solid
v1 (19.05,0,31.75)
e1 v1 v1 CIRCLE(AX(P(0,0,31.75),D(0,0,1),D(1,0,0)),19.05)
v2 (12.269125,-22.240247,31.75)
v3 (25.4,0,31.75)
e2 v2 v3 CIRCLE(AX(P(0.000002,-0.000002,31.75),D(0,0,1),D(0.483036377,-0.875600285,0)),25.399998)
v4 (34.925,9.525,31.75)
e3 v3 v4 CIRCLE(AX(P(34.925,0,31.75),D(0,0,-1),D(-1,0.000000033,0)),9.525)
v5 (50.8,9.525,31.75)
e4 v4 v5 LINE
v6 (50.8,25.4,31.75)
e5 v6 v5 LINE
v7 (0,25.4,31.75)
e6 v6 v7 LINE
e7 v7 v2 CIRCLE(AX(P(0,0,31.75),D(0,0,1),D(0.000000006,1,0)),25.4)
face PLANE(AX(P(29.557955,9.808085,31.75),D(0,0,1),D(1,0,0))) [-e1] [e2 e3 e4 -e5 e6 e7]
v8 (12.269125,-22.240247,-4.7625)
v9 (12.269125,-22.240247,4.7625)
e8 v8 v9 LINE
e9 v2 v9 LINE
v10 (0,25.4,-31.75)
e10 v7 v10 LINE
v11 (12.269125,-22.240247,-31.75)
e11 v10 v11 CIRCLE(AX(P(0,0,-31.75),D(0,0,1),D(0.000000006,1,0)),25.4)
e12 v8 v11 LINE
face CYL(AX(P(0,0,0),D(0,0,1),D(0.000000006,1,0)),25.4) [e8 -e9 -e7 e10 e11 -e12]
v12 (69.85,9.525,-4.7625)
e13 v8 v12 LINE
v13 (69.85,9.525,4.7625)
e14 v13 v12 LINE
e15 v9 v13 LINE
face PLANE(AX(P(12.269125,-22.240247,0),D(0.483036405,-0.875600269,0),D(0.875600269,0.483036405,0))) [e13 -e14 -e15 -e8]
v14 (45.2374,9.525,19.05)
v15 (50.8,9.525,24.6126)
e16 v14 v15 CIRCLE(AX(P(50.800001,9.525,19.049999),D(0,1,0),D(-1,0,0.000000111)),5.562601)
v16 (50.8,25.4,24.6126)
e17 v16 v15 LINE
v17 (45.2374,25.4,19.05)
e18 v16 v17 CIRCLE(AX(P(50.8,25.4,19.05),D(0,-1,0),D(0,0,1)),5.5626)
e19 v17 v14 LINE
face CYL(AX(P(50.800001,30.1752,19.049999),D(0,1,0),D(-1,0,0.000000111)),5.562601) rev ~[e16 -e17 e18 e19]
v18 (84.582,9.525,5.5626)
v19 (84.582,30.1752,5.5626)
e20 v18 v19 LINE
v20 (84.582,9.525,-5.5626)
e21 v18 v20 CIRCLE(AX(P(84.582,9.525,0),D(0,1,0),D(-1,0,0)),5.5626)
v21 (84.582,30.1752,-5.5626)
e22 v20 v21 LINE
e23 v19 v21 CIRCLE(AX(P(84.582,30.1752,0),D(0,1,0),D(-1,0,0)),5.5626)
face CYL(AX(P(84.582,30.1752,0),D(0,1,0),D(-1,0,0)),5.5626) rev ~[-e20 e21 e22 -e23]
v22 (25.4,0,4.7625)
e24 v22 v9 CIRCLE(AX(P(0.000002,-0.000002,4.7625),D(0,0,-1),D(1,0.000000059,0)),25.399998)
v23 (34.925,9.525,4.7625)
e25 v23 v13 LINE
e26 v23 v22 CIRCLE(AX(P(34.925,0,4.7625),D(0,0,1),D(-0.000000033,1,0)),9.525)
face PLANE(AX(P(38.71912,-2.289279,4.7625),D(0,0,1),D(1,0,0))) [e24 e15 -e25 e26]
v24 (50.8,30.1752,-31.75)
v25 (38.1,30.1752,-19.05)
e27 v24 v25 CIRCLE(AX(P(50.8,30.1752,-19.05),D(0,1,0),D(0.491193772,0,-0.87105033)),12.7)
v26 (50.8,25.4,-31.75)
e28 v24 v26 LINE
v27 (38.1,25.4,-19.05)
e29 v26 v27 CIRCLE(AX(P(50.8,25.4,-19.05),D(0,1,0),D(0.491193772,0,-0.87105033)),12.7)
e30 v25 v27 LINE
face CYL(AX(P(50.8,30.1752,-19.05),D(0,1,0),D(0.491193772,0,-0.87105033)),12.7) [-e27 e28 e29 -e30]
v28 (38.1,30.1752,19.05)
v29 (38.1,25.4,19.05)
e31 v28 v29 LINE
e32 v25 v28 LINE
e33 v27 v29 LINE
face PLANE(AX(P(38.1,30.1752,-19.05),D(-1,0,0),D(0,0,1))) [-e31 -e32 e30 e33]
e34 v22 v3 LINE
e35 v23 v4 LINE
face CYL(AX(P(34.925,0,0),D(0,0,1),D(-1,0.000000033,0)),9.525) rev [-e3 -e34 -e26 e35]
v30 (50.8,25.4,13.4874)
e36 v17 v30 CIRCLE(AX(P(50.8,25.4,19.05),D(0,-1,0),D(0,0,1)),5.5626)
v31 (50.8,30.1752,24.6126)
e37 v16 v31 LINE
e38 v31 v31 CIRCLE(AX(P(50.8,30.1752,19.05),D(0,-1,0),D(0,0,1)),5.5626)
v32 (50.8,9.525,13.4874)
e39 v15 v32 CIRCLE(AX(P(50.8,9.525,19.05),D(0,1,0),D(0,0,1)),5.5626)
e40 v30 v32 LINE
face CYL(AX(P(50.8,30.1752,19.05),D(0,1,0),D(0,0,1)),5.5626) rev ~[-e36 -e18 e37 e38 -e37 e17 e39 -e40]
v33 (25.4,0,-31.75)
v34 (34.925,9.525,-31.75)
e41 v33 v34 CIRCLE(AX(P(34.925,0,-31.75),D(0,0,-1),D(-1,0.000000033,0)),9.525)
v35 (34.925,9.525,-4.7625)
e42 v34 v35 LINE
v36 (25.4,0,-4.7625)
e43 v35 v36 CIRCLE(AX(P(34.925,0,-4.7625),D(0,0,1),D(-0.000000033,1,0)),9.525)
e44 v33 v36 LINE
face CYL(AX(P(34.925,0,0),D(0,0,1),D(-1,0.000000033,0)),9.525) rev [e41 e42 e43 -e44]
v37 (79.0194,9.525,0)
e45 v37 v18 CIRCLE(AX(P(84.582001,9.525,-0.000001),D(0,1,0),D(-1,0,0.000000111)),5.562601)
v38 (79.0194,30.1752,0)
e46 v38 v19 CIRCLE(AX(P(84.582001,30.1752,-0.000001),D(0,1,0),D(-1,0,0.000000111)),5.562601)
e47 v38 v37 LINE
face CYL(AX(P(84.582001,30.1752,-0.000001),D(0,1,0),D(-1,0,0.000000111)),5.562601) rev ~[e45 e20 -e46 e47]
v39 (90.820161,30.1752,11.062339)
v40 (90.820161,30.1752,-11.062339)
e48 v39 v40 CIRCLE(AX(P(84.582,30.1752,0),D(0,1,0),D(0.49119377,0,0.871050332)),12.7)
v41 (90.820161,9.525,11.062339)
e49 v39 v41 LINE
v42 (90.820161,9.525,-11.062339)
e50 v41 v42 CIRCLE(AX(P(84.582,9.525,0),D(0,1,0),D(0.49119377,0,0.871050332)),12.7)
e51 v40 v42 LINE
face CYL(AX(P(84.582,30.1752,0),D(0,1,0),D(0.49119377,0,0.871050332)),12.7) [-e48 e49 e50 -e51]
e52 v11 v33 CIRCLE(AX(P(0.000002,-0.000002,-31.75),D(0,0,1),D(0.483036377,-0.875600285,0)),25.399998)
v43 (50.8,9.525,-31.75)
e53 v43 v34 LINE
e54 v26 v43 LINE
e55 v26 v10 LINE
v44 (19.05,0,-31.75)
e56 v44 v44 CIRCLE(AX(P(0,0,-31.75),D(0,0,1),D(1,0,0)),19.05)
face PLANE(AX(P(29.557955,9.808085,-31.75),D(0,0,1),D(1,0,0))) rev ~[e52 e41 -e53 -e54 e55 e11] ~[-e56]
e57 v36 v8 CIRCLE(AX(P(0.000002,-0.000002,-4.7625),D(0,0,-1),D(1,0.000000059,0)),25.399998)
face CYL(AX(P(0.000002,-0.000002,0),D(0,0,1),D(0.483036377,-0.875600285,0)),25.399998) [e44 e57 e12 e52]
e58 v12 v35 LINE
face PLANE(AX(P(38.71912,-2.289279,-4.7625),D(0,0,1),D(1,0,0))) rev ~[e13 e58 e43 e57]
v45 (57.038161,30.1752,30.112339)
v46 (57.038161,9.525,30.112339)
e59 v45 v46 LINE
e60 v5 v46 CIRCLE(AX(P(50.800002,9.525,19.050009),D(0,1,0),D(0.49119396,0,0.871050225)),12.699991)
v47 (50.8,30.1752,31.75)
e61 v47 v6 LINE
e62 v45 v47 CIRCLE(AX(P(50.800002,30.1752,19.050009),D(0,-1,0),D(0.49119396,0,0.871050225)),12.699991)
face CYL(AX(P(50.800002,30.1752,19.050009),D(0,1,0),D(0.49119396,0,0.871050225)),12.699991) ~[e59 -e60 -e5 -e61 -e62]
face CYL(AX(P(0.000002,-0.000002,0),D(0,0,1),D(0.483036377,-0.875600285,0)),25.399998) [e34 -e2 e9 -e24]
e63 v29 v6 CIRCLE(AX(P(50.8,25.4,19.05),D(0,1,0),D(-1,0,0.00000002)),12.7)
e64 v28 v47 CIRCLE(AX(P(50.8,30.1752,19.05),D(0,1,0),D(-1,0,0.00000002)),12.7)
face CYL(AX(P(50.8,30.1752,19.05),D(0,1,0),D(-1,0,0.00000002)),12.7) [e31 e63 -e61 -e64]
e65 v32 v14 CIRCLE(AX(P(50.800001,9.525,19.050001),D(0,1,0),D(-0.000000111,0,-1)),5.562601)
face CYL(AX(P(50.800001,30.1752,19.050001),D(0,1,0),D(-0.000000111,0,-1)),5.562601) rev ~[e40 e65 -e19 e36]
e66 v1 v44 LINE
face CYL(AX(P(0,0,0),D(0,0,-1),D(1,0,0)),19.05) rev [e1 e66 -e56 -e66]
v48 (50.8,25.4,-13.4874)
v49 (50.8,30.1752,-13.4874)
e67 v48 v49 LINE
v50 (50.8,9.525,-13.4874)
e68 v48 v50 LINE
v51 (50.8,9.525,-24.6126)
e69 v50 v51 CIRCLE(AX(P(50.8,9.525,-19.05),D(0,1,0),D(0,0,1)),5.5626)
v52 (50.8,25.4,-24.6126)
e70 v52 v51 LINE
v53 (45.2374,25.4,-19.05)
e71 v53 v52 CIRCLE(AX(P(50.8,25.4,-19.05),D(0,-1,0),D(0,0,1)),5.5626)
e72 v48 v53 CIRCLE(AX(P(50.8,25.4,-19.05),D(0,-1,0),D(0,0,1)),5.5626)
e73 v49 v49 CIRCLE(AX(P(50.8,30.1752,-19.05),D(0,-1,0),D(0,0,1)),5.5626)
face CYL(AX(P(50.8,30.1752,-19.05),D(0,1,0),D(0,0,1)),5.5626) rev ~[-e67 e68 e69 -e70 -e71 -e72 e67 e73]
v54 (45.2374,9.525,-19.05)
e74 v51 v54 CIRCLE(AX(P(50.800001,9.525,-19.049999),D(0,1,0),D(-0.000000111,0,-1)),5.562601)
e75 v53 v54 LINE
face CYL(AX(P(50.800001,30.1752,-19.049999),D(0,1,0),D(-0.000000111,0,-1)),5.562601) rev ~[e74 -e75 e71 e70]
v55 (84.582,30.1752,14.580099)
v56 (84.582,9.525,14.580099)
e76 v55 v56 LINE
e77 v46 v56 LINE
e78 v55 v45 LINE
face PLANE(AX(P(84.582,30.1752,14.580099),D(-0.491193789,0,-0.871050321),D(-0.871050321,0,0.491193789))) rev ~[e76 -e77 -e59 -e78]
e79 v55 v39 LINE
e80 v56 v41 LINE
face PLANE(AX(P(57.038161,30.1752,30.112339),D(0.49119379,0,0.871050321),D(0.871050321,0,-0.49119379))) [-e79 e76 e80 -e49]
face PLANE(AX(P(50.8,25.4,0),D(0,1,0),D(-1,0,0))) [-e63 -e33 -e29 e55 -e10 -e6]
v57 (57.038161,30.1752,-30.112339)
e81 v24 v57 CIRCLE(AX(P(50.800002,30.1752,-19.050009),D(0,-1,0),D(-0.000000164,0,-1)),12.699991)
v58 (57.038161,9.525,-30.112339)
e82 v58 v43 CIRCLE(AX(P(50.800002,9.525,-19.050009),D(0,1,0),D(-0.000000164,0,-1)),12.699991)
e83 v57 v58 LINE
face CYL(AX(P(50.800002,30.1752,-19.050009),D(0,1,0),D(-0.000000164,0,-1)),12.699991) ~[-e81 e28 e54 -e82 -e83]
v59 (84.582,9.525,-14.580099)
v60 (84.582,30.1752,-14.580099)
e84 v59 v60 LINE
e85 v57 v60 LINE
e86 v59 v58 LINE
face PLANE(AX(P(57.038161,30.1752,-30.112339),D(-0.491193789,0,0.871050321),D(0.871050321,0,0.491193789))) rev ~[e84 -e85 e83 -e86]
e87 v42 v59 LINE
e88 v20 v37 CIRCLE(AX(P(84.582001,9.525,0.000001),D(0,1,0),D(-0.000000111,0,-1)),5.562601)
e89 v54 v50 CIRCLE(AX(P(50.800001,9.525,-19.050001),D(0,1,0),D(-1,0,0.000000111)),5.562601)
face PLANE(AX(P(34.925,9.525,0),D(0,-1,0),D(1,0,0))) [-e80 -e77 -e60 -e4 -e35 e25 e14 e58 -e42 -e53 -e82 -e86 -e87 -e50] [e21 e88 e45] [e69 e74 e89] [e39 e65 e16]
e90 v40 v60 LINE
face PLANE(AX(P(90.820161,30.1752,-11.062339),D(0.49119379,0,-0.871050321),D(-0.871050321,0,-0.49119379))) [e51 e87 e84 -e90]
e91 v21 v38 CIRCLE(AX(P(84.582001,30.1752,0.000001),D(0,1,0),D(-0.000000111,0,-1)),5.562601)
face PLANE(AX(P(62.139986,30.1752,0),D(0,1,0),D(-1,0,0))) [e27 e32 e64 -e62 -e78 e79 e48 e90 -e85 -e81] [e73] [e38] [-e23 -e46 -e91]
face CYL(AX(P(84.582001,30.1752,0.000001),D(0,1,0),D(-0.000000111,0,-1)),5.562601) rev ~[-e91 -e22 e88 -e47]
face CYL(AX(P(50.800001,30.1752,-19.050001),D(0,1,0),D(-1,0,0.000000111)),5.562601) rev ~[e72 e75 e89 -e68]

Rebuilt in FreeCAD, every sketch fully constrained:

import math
import FreeCAD as App
import Part
import Sketcher
from FreeCAD import Vector
Q = App.Units.Quantity

doc = App.newDocument("Part")
params = doc.addObject("Spreadsheet::Sheet", "Params")
for row, (alias, value) in enumerate([
    ("sketch1_radius", "0.9999999 in"),
    ("sketch1_diameter", "1.5 in"),
    ("sketch1_width", "2 in"),
    ("sketch1_radius2", "0.375 in"),
    ("sketch1_width2", "1.33 in"),
    ("pad1_length", "2.5 in"),
    ("sketch2_radius", "0.9999999 in"),
    ("sketch2_radius2", "0.375 in"),
    ("sketch2_width", "1.375 in"),
    ("pad2_length", "0.375 in"),
    ("sketch3_radius", "0.5 in"),
    ("sketch3_diameter", "0.438 in"),
    ("sketch3_height", "1.5 in"),
    ("pad3_length", "0.813 in"),
    ("sketch4_radius", "0.219 in"),
    ("sketch4_width", "1.33 in"),
], start=1):
    params.set(f"A{row}", alias)
    params.set(f"B{row}", "=" + value)
    params.setAlias(f"B{row}", alias)

body = doc.addObject("PartDesign::Body", "Body")

# Sketch on XY plane
sketch1 = body.newObject("Sketcher::SketchObject", "Sketch")
sketch1.AttachmentSupport = (doc.getObject("XY_Plane"), [""])
sketch1.MapMode = "FlatFace"
sketch1.addGeometry([
    Part.ArcOfCircle(Part.Circle(Vector(0, 0, 0), Vector(0, 0, 1), 25.4), math.radians(-61), math.radians(0)),  # 0
    Part.ArcOfCircle(Part.Circle(Vector(34.9, 0, 0), Vector(0, 0, 1), 9.5), math.radians(90), math.radians(180)),  # 1
    Part.LineSegment(Vector(34.9, 9.5, 0), Vector(84.6, 9.5, 0)),  # 2
    Part.LineSegment(Vector(84.6, 9.5, 0), Vector(84.6, 30.2, 0)),  # 3
    Part.LineSegment(Vector(84.6, 30.2, 0), Vector(50.8, 30.2, 0)),  # 4
    Part.LineSegment(Vector(50.8, 30.2, 0), Vector(50.8, 25.4, 0)),  # 5
    Part.LineSegment(Vector(50.8, 25.4, 0), Vector(0, 25.4, 0)),  # 6
    Part.ArcOfCircle(Part.Circle(Vector(0, 0, 0), Vector(0, 0, 1), 25.4), math.radians(90), math.radians(299)),  # 7
    Part.Circle(Vector(0, 0, 0), Vector(0, 0, 1), 19.1),  # 8
], False)
sketch1.addConstraint([
    Sketcher.Constraint("Tangent", 0, 2, 1, 2),
    Sketcher.Constraint("Tangent", 1, 1, 2, 1),
    Sketcher.Constraint("Coincident", 2, 2, 3, 1),
    Sketcher.Constraint("Coincident", 3, 2, 4, 1),
    Sketcher.Constraint("Coincident", 4, 2, 5, 1),
    Sketcher.Constraint("Coincident", 5, 2, 6, 1),
    Sketcher.Constraint("Tangent", 6, 2, 7, 1),
    Sketcher.Constraint("Tangent", 7, 2, 0, 1),
    Sketcher.Constraint("Horizontal", 2),
    Sketcher.Constraint("Vertical", 3),
    Sketcher.Constraint("Horizontal", 4),
    Sketcher.Constraint("Vertical", 5),
    Sketcher.Constraint("Horizontal", 6),
    Sketcher.Constraint("Coincident", 0, 3, -1, 1),
    Sketcher.Constraint("Coincident", 8, 3, -1, 1),
    Sketcher.Constraint("PointOnObject", 1, 3, -1),
    Sketcher.Constraint("PointOnObject", 6, 2, -2),
    Sketcher.Constraint("Radius", 0, Q("0.9999999 in")),
    Sketcher.Constraint("Diameter", 8, Q("1.5 in")),
    Sketcher.Constraint("DistanceX", 6, 2, 6, 1, Q("2 in")),
    Sketcher.Constraint("Radius", 1, Q("0.375 in")),
    Sketcher.Constraint("DistanceX", 4, 2, 4, 1, Q("1.33 in")),
    Sketcher.Constraint("DistanceY", 3, 1, 3, 2, Q("0.813 in")),
    Sketcher.Constraint("DistanceX", -1, 1, 7, 2, 12.269125),
])
sketch1.setExpression("Constraints[17]", "Params.sketch1_radius")
sketch1.setExpression("Constraints[18]", "Params.sketch1_diameter")
sketch1.setExpression("Constraints[19]", "Params.sketch1_width")
sketch1.setExpression("Constraints[20]", "Params.sketch1_radius2")
sketch1.setExpression("Constraints[21]", "Params.sketch1_width2")
pad1 = body.newObject("PartDesign::Pad", "Pad")
pad1.Profile = sketch1
pad1.setExpression("Length", "Params.pad1_length")
pad1.Midplane = True

# Sketch on XY plane
sketch2 = body.newObject("Sketcher::SketchObject", "Sketch001")
sketch2.AttachmentSupport = (doc.getObject("XY_Plane"), [""])
sketch2.MapMode = "FlatFace"
sketch2.addGeometry([
    Part.ArcOfCircle(Part.Circle(Vector(35, 0, 0), Vector(0, 0, 1), 10), math.radians(90), math.radians(180)),
    Part.ArcOfCircle(Part.Circle(Vector(0, 0, 0), Vector(0, 0, 1), 25), math.radians(-61), math.radians(0)),
    Part.LineSegment(Vector(12, -22, 0), Vector(70, 10, 0)),
    Part.LineSegment(Vector(70, 10, 0), Vector(35, 10, 0)),
], False)
sketch2.addConstraint([
    Sketcher.Constraint("Tangent", 0, 2, 1, 2),
    Sketcher.Constraint("Tangent", 1, 1, 2, 1),
    Sketcher.Constraint("Coincident", 2, 2, 3, 1),
    Sketcher.Constraint("Tangent", 3, 2, 0, 1),
    Sketcher.Constraint("Horizontal", 3),
    Sketcher.Constraint("Coincident", 1, 3, -1, 1),
    Sketcher.Constraint("PointOnObject", 0, 3, -1),
    Sketcher.Constraint("Radius", 1, Q("0.9999999 in")),
    Sketcher.Constraint("Radius", 0, Q("0.375 in")),
    Sketcher.Constraint("DistanceX", 3, 2, 3, 1, Q("1.375 in")),
])
sketch2.setExpression("Constraints[7]", "Params.sketch2_radius")
sketch2.setExpression("Constraints[8]", "Params.sketch2_radius2")
sketch2.setExpression("Constraints[9]", "Params.sketch2_width")
pad2 = body.newObject("PartDesign::Pad", "Pad001")
pad2.Profile = sketch2
pad2.setExpression("Length", "Params.pad2_length")
pad2.Midplane = True

# Sketch on XZ plane
sketch3 = body.newObject("Sketcher::SketchObject", "Sketch002")
sketch3.AttachmentSupport = (doc.getObject("XZ_Plane"), [""])
sketch3.MapMode = "FlatFace"
sketch3.AttachmentOffset = App.Placement(Vector(0, 0, -1.188 * 25.4), App.Rotation())
sketch3.addGeometry([
    Part.LineSegment(Vector(38, -19, 0), Vector(38, 19, 0)),  # 0
    Part.ArcOfCircle(Part.Circle(Vector(51, 19, 0), Vector(0, 0, 1), 13), math.radians(61), math.radians(180)),  # 1
    Part.LineSegment(Vector(57, 30, 0), Vector(91, 11, 0)),  # 2
    Part.ArcOfCircle(Part.Circle(Vector(85, 0, 0), Vector(0, 0, 1), 13), math.radians(-61), math.radians(61)),  # 3
    Part.LineSegment(Vector(91, -11, 0), Vector(57, -30, 0)),  # 4
    Part.ArcOfCircle(Part.Circle(Vector(51, -19, 0), Vector(0, 0, 1), 13), math.radians(-180), math.radians(-61)),  # 5
    Part.Circle(Vector(51, -19, 0), Vector(0, 0, 1), 6),  # 6
    Part.Circle(Vector(85, 0, 0), Vector(0, 0, 1), 6),  # 7
    Part.Circle(Vector(51, 19, 0), Vector(0, 0, 1), 6),  # 8
], False)
sketch3.addConstraint([
    Sketcher.Constraint("Tangent", 0, 2, 1, 2),
    Sketcher.Constraint("Tangent", 1, 1, 2, 1),
    Sketcher.Constraint("Tangent", 2, 2, 3, 2),
    Sketcher.Constraint("Tangent", 3, 1, 4, 1),
    Sketcher.Constraint("Tangent", 4, 2, 5, 2),
    Sketcher.Constraint("Tangent", 5, 1, 0, 1),
    Sketcher.Constraint("Vertical", 0),
    Sketcher.Constraint("Coincident", 6, 3, 5, 3),
    Sketcher.Constraint("Coincident", 7, 3, 3, 3),
    Sketcher.Constraint("Coincident", 8, 3, 1, 3),
    Sketcher.Constraint("Equal", 1, 3),
    Sketcher.Constraint("Equal", 3, 5),
    Sketcher.Constraint("Equal", 6, 7),
    Sketcher.Constraint("Equal", 7, 8),
    Sketcher.Constraint("Symmetric", 2, 2, 3, 1, -1),
    Sketcher.Constraint("Radius", 1, Q("0.5 in")),
    Sketcher.Constraint("Diameter", 6, Q("0.438 in")),
    Sketcher.Constraint("DistanceY", 0, 1, 0, 2, Q("1.5 in")),
    Sketcher.Constraint("DistanceX", -1, 1, 1, 3, Q("2 in")),
    Sketcher.Constraint("DistanceX", -1, 1, 3, 3, Q("3.33 in")),
])
sketch3.setExpression("Constraints[15]", "Params.sketch3_radius")
sketch3.setExpression("Constraints[16]", "Params.sketch3_diameter")
sketch3.setExpression("Constraints[17]", "Params.sketch3_height")
pad3 = body.newObject("PartDesign::Pad", "Pad002")
pad3.Profile = sketch3
pad3.setExpression("Length", "Params.pad3_length")

# Sketch on XZ plane
sketch4 = body.newObject("Sketcher::SketchObject", "Sketch003")
sketch4.AttachmentSupport = (doc.getObject("XZ_Plane"), [""])
sketch4.MapMode = "FlatFace"
sketch4.AttachmentOffset = App.Placement(Vector(0, 0, -1.188 * 25.4), App.Rotation())
sketch4.addGeometry([
    Part.ArcOfCircle(Part.Circle(Vector(51, -19, 0), Vector(0, 0, 1), 6), math.radians(90), math.radians(180)),  # 0
    Part.ArcOfCircle(Part.Circle(Vector(51, -19, 0), Vector(0, 0, 1), 6), math.radians(-90), math.radians(90)),  # 1
    Part.ArcOfCircle(Part.Circle(Vector(51, -19, 0), Vector(0, 0, 1), 6), math.radians(-180), math.radians(-90)),  # 2
    Part.ArcOfCircle(Part.Circle(Vector(51, 19, 0), Vector(0, 0, 1), 6), math.radians(-90), math.radians(90)),  # 3
    Part.ArcOfCircle(Part.Circle(Vector(51, 19, 0), Vector(0, 0, 1), 6), math.radians(-180), math.radians(-90)),  # 4
    Part.ArcOfCircle(Part.Circle(Vector(51, 19, 0), Vector(0, 0, 1), 6), math.radians(90), math.radians(180)),  # 5
    Part.ArcOfCircle(Part.Circle(Vector(85, 0, 0), Vector(0, 0, 1), 6), math.radians(90), math.radians(180)),  # 6
    Part.LineSegment(Vector(85, 6, 0), Vector(85, -6, 0)),  # 7
    Part.ArcOfCircle(Part.Circle(Vector(85, 0, 0), Vector(0, 0, 1), 6), math.radians(-180), math.radians(-90)),  # 8
    Part.ArcOfCircle(Part.Circle(Vector(51, 19, 0), Vector(0, 0, 1), 13), math.radians(61), math.radians(90)),  # 9
    Part.LineSegment(Vector(51, 32, 0), Vector(85, 32, 0)),  # 10
    Part.LineSegment(Vector(85, 32, 0), Vector(85, 15, 0)),  # 11
    Part.LineSegment(Vector(85, 15, 0), Vector(57, 30, 0)),  # 12
    Part.LineSegment(Vector(85, -32, 0), Vector(51, -32, 0)),  # 13
    Part.ArcOfCircle(Part.Circle(Vector(51, -19, 0), Vector(0, 0, 1), 13), math.radians(-90), math.radians(-61)),  # 14
    Part.LineSegment(Vector(57, -30, 0), Vector(85, -15, 0)),  # 15
    Part.LineSegment(Vector(85, -15, 0), Vector(85, -32, 0)),  # 16
], False)
sketch4.addConstraint([
    Sketcher.Constraint("Tangent", 0, 1, 1, 2),
    Sketcher.Constraint("Tangent", 1, 1, 2, 2),
    Sketcher.Constraint("Tangent", 2, 1, 0, 2),
    Sketcher.Constraint("Tangent", 3, 1, 4, 2),
    Sketcher.Constraint("Tangent", 4, 1, 5, 2),
    Sketcher.Constraint("Tangent", 5, 1, 3, 2),
    Sketcher.Constraint("Coincident", 6, 1, 7, 1),
    Sketcher.Constraint("Coincident", 7, 2, 8, 2),
    Sketcher.Constraint("Tangent", 8, 1, 6, 2),
    Sketcher.Constraint("Tangent", 9, 2, 10, 1),
    Sketcher.Constraint("Coincident", 10, 2, 11, 1),
    Sketcher.Constraint("Coincident", 11, 2, 12, 1),
    Sketcher.Constraint("Tangent", 12, 2, 9, 1),
    Sketcher.Constraint("Tangent", 13, 2, 14, 1),
    Sketcher.Constraint("Tangent", 14, 2, 15, 1),
    Sketcher.Constraint("Coincident", 15, 2, 16, 1),
    Sketcher.Constraint("Coincident", 16, 2, 13, 1),
    Sketcher.Constraint("Vertical", 7),
    Sketcher.Constraint("Horizontal", 10),
    Sketcher.Constraint("Vertical", 11),
    Sketcher.Constraint("Horizontal", 13),
    Sketcher.Constraint("Vertical", 16),
    Sketcher.Constraint("Coincident", 9, 3, 3, 3),
    Sketcher.Constraint("Coincident", 14, 3, 0, 3),
    Sketcher.Constraint("Equal", 2, 3),
    Sketcher.Constraint("Equal", 5, 6),
    Sketcher.Constraint("Equal", 6, 8),
    Sketcher.Constraint("Equal", 9, 14),
    Sketcher.Constraint("Symmetric", 0, 3, 3, 3, -1),
    Sketcher.Constraint("Symmetric", 11, 2, 15, 2, -1),
    Sketcher.Constraint("PointOnObject", 6, 3, -1),
    Sketcher.Constraint("PointOnObject", 8, 1, -1),
    Sketcher.Constraint("Horizontal", 1, 3, 2, 1),
    Sketcher.Constraint("Horizontal", 5, 3, 4, 1),
    Sketcher.Constraint("Vertical", 5, 3, 0, 1),
    Sketcher.Constraint("Vertical", 0, 1, 1, 1),
    Sketcher.Constraint("Vertical", 1, 1, 3, 1),
    Sketcher.Constraint("Vertical", 3, 1, 5, 1),
    Sketcher.Constraint("Vertical", 8, 3, 6, 1),
    Sketcher.Constraint("Vertical", 7, 2, 10, 2),
    Sketcher.Constraint("DistanceX", -1, 1, 0, 3, Q("2 in")),
    Sketcher.Constraint("Radius", 0, Q("0.219 in")),
    Sketcher.Constraint("DistanceX", 10, 1, 10, 2, Q("1.33 in")),
    Sketcher.Constraint("DistanceY", 2, 3, 3, 3, Q("1.5 in")),
    Sketcher.Constraint("DistanceY", 4, 3, 9, 2, Q("0.5 in")),
    Sketcher.Constraint("DistanceY", 11, 2, 11, 1, 17.169901),
])
sketch4.setExpression("Constraints[41]", "Params.sketch4_radius")
sketch4.setExpression("Constraints[42]", "Params.sketch4_width")
pocket1 = body.newObject("PartDesign::Pocket", "Pocket")
pocket1.Profile = sketch4
pocket1.Type = "ThroughAll"
pocket1.Reversed = True

doc.recompute()
